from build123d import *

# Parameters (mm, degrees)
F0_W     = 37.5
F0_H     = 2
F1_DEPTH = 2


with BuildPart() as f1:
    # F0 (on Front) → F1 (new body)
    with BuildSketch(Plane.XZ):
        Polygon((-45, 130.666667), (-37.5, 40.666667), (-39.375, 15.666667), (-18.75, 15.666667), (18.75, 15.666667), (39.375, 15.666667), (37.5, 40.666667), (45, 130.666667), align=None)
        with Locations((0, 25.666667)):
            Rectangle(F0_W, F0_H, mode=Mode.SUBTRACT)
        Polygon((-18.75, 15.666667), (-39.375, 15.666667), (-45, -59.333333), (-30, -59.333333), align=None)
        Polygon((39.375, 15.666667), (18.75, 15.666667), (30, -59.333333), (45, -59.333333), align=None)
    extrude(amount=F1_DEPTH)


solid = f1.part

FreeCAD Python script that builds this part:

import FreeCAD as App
import Part
import Sketcher

V = App.Vector


def add_polygon(sketch, points):
    """Adds a closed chain of lines whose ends are joined by coincident constraints."""
    first, n = sketch.GeometryCount, len(points)
    for a, b in zip(points, points[1:] + points[:1]):
        sketch.addGeometry(Part.LineSegment(App.Vector(*a, 0), App.Vector(*b, 0)), False)
    for i in range(n):
        sketch.addConstraint(Sketcher.Constraint("Coincident", first + i, 2, first + (i + 1) % n, 1))

doc = App.newDocument("Part")
body = doc.addObject("PartDesign::Body", "Body")

sketch1 = body.newObject("Sketcher::SketchObject", "Sketch")
sketch1.AttachmentSupport = (doc.getObject("XZ_Plane"), [""])
sketch1.MapMode = "FlatFace"
add_polygon(sketch1, [(-45, 130.7), (-37.5, 40.7), (-45, -59.3), (-30, -59.3), (-18.8, 15.7), (18.8, 15.7), (30, -59.3), (45, -59.3), (37.5, 40.7), (45, 130.7)])
add_polygon(sketch1, [(18.8, 24.7), (-18.8, 24.7), (-18.8, 26.7), (18.8, 26.7)])
sketch1.addConstraint([
    Sketcher.Constraint("Horizontal", 2),
    Sketcher.Constraint("Horizontal", 4),
    Sketcher.Constraint("Horizontal", 6),
    Sketcher.Constraint("Horizontal", 9),
    Sketcher.Constraint("Horizontal", 10),
    Sketcher.Constraint("Vertical", 11),
    Sketcher.Constraint("Horizontal", 12),
    Sketcher.Constraint("Vertical", 13),
    Sketcher.Constraint("Symmetric", 2, 2, 5, 2, -2),
    Sketcher.Constraint("Symmetric", 0, 2, 7, 2, -2),
    Sketcher.Constraint("Vertical", 6, 2, 8, 2),
    Sketcher.Constraint("Vertical", 1, 2, 9, 2),
    Sketcher.Constraint("Vertical", 3, 2, 10, 2),
    Sketcher.Constraint("Vertical", 4, 2, 12, 2),
    Sketcher.Constraint("Equal", 2, 6),
    Sketcher.Constraint("Equal", 3, 5),
    Sketcher.Constraint("DistanceX", 2, 1, 2, 2, 15.0),
    Sketcher.Constraint("DistanceX", 9, 2, 9, 1, 90.0),
    Sketcher.Constraint("DistanceY", 11, 1, 11, 2, 2.0),
    Sketcher.Constraint("DistanceX", 4, 1, 4, 2, 37.5),
    Sketcher.Constraint("DistanceY", 1, 2, 0, 2, 100.0),
    Sketcher.Constraint("DistanceY", 3, 2, 0, 2, 25.0),
    Sketcher.Constraint("DistanceX", 0, 2, 7, 2, 75.0),
    Sketcher.Constraint("DistanceY", 7, 2, 8, 2, 90.0),
    Sketcher.Constraint("DistanceY", 3, 2, 10, 2, 9.0),
    Sketcher.Constraint("DistanceY", -1, 1, 0, 2, 40.666667),
])
pad1 = body.newObject("PartDesign::Pad", "Pad")
pad1.Profile = sketch1
pad1.Length = 2

doc.recompute()
